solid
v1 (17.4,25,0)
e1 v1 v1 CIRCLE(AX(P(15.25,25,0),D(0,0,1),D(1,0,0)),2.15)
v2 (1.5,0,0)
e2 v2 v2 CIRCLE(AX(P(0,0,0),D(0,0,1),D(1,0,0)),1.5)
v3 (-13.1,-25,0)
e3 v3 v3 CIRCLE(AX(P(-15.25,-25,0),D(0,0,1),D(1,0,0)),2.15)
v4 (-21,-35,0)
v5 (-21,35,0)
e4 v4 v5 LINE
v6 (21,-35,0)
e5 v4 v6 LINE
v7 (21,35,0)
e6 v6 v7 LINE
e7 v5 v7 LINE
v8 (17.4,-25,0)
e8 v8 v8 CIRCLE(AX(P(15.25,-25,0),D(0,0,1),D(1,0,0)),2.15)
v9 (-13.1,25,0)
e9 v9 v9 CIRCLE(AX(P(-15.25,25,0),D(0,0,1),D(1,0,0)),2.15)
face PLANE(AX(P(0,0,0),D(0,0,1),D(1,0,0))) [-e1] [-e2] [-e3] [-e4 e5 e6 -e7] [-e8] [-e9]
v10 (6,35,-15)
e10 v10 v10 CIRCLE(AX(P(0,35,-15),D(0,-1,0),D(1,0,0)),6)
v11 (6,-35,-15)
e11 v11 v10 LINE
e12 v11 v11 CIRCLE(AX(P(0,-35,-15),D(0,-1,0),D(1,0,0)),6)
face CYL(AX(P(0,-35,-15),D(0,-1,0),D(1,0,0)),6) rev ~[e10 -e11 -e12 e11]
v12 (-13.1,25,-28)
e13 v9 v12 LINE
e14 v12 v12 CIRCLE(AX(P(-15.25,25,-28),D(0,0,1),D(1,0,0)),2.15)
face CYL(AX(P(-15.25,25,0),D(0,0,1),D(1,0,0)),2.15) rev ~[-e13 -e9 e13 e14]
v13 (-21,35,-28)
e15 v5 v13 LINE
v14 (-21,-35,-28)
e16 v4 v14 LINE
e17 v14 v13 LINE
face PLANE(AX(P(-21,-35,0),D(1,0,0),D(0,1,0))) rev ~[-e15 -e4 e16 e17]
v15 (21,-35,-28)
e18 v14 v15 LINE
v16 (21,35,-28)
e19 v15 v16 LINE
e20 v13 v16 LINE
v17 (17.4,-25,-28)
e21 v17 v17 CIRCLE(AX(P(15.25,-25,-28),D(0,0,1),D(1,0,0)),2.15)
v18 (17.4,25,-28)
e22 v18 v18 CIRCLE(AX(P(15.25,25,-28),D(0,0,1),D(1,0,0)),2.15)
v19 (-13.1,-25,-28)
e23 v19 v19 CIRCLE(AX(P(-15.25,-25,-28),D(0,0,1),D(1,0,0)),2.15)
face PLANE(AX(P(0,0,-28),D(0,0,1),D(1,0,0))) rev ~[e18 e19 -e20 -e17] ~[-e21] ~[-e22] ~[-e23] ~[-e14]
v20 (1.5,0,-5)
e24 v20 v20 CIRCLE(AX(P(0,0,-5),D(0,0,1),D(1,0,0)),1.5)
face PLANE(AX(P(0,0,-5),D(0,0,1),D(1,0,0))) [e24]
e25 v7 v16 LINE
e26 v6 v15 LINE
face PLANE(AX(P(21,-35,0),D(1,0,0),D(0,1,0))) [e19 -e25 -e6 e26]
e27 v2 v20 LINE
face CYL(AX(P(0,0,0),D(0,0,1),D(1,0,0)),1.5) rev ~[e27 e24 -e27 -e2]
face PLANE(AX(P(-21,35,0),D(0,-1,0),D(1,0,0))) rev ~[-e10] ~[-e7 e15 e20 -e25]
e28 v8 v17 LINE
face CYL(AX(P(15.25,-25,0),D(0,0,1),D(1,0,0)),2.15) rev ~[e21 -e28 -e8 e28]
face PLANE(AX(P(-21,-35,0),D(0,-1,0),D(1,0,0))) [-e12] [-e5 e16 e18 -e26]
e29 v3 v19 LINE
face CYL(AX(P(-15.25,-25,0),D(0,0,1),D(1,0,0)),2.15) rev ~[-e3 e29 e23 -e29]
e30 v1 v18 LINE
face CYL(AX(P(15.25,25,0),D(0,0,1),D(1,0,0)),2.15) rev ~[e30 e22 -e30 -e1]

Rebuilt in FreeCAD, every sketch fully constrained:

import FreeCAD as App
import Part
import Sketcher
from FreeCAD import Vector
Q = App.Units.Quantity


def add_polygon(sketch, points):
    """Adds a closed chain of lines whose ends are joined by coincident constraints."""
    first, n = sketch.GeometryCount, len(points)
    for a, b in zip(points, points[1:] + points[:1]):
        sketch.addGeometry(Part.LineSegment(App.Vector(*a, 0), App.Vector(*b, 0)), False)
    for i in range(n):
        sketch.addConstraint(Sketcher.Constraint("Coincident", first + i, 2, first + (i + 1) % n, 1))

doc = App.newDocument("Part")
body = doc.addObject("PartDesign::Body", "Body")

# Sketch on XY plane
sketch1 = doc.addObject("Sketcher::SketchObject", "Sketch")
body.addObject(sketch1)
sketch1.AttachmentSupport = (doc.XY_Plane, [""])
sketch1.MapMode = "FlatFace"
add_polygon(sketch1, [(-21, 35), (-21, -35), (21, -35), (21, 35)])  # lines 0-3
sketch1.addGeometry(Part.Circle(Vector(-15.25, -25, 0), Vector(0, 0, 1), 2.15), False)  # 4
sketch1.addGeometry(Part.Circle(Vector(15.25, -25, 0), Vector(0, 0, 1), 2.15), False)  # 5
sketch1.addGeometry(Part.Circle(Vector(-15.25, 25, 0), Vector(0, 0, 1), 2.15), False)  # 6
sketch1.addGeometry(Part.Circle(Vector(15.25, 25, 0), Vector(0, 0, 1), 2.15), False)  # 7
sketch1.addConstraint([
    Sketcher.Constraint("Vertical", 0),
    Sketcher.Constraint("Horizontal", 1),
    Sketcher.Constraint("Vertical", 2),
    Sketcher.Constraint("Horizontal", 3),
    Sketcher.Constraint("Equal", 4, 5),
    Sketcher.Constraint("Equal", 5, 6),
    Sketcher.Constraint("Equal", 6, 7),
    Sketcher.Constraint("Symmetric", 5, 3, 6, 3, -1, 1),
    Sketcher.Constraint("Symmetric", 4, 3, 7, 3, -1, 1),
    Sketcher.Constraint("Symmetric", 0, 2, 2, 2, -1, 1),
    Sketcher.Constraint("Symmetric", 4, 3, 5, 3, -2),
    Sketcher.Constraint("Diameter", 4, Q("4.3 mm")),
    Sketcher.Constraint("DistanceX", 1, 1, 1, 2, Q("42 mm")),
    Sketcher.Constraint("DistanceY", 0, 2, 0, 1, Q("70 mm")),
    Sketcher.Constraint("DistanceY", 4, 3, -1, 1, Q("25 mm")),
    Sketcher.Constraint("DistanceX", 4, 3, 5, 3, Q("30.5 mm")),
])
pad1 = doc.addObject("PartDesign::Pad", "Pad")
body.addObject(pad1)
pad1.Profile = sketch1
pad1.Length = 28
pad1.Reversed = True

# Sketch on XZ plane
sketch2 = doc.addObject("Sketcher::SketchObject", "Sketch001")
body.addObject(sketch2)
sketch2.AttachmentSupport = (doc.XZ_Plane, [""])
sketch2.MapMode = "FlatFace"
sketch2.AttachmentOffset = App.Placement(Vector(0, 0, 35), App.Rotation())
sketch2.addGeometry(Part.Circle(Vector(0, -15, 0), Vector(0, 0, 1), 6), False)
sketch2.addConstraint([
    Sketcher.Constraint("PointOnObject", 0, 3, -2),
    Sketcher.Constraint("Diameter", 0, Q("12 mm")),
    Sketcher.Constraint("DistanceY", 0, 3, -1, 1, Q("15 mm")),
])
pocket1 = doc.addObject("PartDesign::Pocket", "Pocket")
body.addObject(pocket1)
pocket1.Profile = sketch2
pocket1.Length = 70

# Sketch on XY plane
sketch3 = doc.addObject("Sketcher::SketchObject", "Sketch002")
body.addObject(sketch3)
sketch3.AttachmentSupport = (doc.XY_Plane, [""])
sketch3.MapMode = "FlatFace"
sketch3.addGeometry(Part.Circle(Vector(0, 0, 0), Vector(0, 0, 1), 1.5), False)
sketch3.addConstraint([
    Sketcher.Constraint("Coincident", 0, 3, -1, 1),
    Sketcher.Constraint("Diameter", 0, Q("3 mm")),
])
pocket2 = doc.addObject("PartDesign::Pocket", "Pocket001")
body.addObject(pocket2)
pocket2.Profile = sketch3
pocket2.Length = 5

doc.recompute()
